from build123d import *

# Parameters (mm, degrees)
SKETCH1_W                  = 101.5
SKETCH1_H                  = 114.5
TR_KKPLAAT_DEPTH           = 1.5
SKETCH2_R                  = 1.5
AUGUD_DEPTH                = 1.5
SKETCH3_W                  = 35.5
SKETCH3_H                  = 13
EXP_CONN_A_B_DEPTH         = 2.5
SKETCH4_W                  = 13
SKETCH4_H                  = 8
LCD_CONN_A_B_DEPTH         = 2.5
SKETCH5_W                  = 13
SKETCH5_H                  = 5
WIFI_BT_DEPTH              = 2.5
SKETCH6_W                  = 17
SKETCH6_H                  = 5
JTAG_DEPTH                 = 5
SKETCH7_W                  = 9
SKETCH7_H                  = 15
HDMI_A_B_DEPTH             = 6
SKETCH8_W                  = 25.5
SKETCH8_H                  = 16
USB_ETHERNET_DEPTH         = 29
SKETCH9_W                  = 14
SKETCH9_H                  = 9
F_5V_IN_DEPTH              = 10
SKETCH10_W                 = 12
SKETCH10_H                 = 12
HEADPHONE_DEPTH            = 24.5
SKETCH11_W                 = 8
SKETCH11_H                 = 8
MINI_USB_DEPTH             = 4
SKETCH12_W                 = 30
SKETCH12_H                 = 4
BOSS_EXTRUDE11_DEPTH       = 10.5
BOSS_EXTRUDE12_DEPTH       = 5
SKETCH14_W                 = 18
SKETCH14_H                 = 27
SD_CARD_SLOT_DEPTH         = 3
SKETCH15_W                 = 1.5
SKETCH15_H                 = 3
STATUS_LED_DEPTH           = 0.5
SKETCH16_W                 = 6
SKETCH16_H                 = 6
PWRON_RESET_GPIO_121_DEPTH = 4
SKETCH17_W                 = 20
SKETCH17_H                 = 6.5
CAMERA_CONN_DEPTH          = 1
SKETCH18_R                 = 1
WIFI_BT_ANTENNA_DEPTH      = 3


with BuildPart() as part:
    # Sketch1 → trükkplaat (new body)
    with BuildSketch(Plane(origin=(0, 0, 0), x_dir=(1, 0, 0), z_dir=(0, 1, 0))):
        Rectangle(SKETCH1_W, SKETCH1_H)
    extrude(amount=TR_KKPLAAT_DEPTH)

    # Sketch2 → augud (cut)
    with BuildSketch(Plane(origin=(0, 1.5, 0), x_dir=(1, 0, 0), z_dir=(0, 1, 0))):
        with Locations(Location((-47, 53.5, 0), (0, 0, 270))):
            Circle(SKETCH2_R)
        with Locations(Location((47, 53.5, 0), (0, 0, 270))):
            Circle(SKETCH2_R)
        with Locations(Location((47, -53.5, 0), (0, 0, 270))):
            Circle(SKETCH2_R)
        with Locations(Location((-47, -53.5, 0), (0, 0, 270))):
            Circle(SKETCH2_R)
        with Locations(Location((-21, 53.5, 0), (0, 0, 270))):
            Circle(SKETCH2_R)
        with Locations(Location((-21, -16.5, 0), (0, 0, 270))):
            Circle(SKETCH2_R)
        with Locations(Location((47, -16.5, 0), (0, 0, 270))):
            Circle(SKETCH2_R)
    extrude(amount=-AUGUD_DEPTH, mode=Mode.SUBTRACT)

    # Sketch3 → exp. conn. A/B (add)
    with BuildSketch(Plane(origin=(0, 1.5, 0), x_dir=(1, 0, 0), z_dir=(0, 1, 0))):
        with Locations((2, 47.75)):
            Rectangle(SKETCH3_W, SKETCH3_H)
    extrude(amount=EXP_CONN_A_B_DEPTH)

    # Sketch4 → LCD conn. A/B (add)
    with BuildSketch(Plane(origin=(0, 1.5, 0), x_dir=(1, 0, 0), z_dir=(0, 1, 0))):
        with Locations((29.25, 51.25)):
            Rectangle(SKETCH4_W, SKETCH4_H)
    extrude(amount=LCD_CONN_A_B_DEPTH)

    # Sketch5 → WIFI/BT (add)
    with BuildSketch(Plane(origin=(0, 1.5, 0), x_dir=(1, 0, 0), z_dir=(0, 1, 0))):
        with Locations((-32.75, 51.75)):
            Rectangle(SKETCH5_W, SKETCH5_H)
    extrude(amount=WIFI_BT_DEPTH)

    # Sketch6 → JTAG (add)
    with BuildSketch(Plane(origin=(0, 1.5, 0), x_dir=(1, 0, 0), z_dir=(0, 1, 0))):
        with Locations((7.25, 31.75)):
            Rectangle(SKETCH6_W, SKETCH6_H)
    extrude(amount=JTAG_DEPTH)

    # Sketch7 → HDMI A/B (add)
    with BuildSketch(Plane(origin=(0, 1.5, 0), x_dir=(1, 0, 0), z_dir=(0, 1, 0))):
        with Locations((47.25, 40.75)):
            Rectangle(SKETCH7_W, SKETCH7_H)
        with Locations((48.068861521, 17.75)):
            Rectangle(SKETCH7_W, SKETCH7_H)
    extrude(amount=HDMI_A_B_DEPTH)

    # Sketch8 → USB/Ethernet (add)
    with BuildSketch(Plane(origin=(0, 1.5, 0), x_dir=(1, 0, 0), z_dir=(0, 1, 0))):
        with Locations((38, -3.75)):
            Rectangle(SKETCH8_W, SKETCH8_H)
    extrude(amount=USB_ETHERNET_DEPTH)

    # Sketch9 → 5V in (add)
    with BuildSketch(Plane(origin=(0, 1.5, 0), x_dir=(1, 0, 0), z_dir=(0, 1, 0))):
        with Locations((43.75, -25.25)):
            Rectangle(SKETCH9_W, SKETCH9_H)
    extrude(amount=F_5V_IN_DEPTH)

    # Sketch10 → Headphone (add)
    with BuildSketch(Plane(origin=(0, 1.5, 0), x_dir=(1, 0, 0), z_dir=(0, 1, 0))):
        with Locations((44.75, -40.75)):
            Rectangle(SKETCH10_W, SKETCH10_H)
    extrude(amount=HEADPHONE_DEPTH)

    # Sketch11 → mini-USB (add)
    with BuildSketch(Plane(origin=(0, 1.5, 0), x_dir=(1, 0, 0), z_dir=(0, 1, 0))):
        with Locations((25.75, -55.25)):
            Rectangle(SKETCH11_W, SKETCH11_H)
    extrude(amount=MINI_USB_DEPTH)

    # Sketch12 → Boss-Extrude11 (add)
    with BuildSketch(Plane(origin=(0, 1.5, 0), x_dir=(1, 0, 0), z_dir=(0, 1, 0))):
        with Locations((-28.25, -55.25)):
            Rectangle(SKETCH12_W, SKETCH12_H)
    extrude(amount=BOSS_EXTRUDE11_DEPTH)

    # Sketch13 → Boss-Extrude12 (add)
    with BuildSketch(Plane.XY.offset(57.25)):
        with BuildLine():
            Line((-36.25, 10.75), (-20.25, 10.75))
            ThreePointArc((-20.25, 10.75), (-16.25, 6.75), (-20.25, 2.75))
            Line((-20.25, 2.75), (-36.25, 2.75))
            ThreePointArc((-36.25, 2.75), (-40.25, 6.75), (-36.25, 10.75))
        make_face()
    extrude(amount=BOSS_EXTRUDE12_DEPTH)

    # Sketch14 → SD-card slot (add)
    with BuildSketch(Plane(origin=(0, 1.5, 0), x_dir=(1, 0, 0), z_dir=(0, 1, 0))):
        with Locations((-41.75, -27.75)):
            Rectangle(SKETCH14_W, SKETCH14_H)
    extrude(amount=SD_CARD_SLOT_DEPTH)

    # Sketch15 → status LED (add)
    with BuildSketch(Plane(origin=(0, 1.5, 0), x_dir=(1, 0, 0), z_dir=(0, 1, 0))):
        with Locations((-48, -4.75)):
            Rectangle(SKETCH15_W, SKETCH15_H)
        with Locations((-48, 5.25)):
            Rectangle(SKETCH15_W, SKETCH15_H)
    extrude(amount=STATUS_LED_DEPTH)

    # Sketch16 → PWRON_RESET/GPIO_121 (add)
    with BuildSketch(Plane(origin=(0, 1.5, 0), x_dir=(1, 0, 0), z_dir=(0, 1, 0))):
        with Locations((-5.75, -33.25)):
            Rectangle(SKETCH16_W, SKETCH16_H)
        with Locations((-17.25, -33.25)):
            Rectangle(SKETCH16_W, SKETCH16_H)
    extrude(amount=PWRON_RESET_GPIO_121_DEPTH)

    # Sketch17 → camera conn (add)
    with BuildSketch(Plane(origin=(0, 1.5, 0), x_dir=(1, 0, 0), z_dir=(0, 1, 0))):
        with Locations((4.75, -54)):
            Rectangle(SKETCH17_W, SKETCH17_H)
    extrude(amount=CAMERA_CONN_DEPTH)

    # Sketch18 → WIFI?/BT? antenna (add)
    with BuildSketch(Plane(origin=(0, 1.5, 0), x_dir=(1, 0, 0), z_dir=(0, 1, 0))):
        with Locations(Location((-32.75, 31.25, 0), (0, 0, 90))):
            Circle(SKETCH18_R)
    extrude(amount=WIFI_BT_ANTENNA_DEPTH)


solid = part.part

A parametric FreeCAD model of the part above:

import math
import FreeCAD as App
import Part
import Sketcher

V = App.Vector

doc = App.newDocument("Part")
body = doc.addObject("PartDesign::Body", "Body")

# Sketch on XZ plane
sketch1 = body.newObject("Sketcher::SketchObject", "Sketch")
sketch1.AttachmentSupport = (doc.getObject("XZ_Plane"), [""])
sketch1.MapMode = "FlatFace"
sketch1.addGeometry([
    Part.LineSegment(V(-51, -57, 0), V(-51, 57, 0)),
    Part.LineSegment(V(-51, 57, 0), V(51, 57, 0)),
    Part.LineSegment(V(51, 57, 0), V(51, -57, 0)),
    Part.LineSegment(V(51, -57, 0), V(-51, -57, 0)),
], False)
sketch1.addConstraint([
    Sketcher.Constraint("Coincident", 0, 2, 1, 1),
    Sketcher.Constraint("Coincident", 1, 2, 2, 1),
    Sketcher.Constraint("Coincident", 2, 2, 3, 1),
    Sketcher.Constraint("Coincident", 3, 2, 0, 1),
    Sketcher.Constraint("Vertical", 0),
    Sketcher.Constraint("Horizontal", 1),
    Sketcher.Constraint("Vertical", 2),
    Sketcher.Constraint("Horizontal", 3),
    Sketcher.Constraint("Symmetric", 0, 2, 2, 2, -1, 1),
    Sketcher.Constraint("DistanceX", 1, 1, 1, 2, 101.5),
    Sketcher.Constraint("DistanceY", 0, 1, 0, 2, 114.5),
])
pad1 = body.newObject("PartDesign::Pad", "Pad")
pad1.Profile = sketch1
pad1.Length = 1.5
pad1.Reversed = True

# Sketch on XZ plane
sketch2 = body.newObject("Sketcher::SketchObject", "Sketch001")
sketch2.AttachmentSupport = (doc.getObject("XZ_Plane"), [""])
sketch2.MapMode = "FlatFace"
sketch2.AttachmentOffset = App.Placement(V(0, 0, -1.5), App.Rotation())
sketch2.addGeometry([
    Part.Circle(V(-47, -53.5, 0), V(0, 0, 1), 1.5),  # 0
    Part.Circle(V(47, -53.5, 0), V(0, 0, 1), 1.5),  # 1
    Part.Circle(V(47, 53.5, 0), V(0, 0, 1), 1.5),  # 2
    Part.Circle(V(-47, 53.5, 0), V(0, 0, 1), 1.5),  # 3
    Part.Circle(V(-21, -53.5, 0), V(0, 0, 1), 1.5),  # 4
    Part.Circle(V(-21, 16.5, 0), V(0, 0, 1), 1.5),  # 5
    Part.Circle(V(47, 16.5, 0), V(0, 0, 1), 1.5),  # 6
], False)
sketch2.addConstraint([
    Sketcher.Constraint("Equal", 0, 1),
    Sketcher.Constraint("Equal", 1, 2),
    Sketcher.Constraint("Equal", 2, 3),
    Sketcher.Constraint("Equal", 3, 4),
    Sketcher.Constraint("Equal", 4, 5),
    Sketcher.Constraint("Equal", 5, 6),
    Sketcher.Constraint("Symmetric", 0, 3, 2, 3, -1, 1),
    Sketcher.Constraint("Symmetric", 1, 3, 3, 3, -1, 1),
    Sketcher.Constraint("Symmetric", 0, 3, 1, 3, -2),
    Sketcher.Constraint("Horizontal", 1, 3, 4, 3),
    Sketcher.Constraint("Horizontal", 5, 3, 6, 3),
    Sketcher.Constraint("Vertical", 4, 3, 5, 3),
    Sketcher.Constraint("Vertical", 2, 3, 6, 3),
    Sketcher.Constraint("Diameter", 0, 3.0),
    Sketcher.Constraint("DistanceX", 0, 3, -1, 1, 47.0),
    Sketcher.Constraint("DistanceX", 4, 3, -1, 1, 21.0),
    Sketcher.Constraint("DistanceY", 1, 3, 2, 3, 107.0),
    Sketcher.Constraint("DistanceY", 5, 3, 3, 3, 37.0),
])
pocket1 = body.newObject("PartDesign::Pocket", "Pocket")
pocket1.Profile = sketch2
pocket1.Length = 1.5
pocket1.Reversed = True

# Sketch on XZ plane
sketch3 = body.newObject("Sketcher::SketchObject", "Sketch002")
sketch3.AttachmentSupport = (doc.getObject("XZ_Plane"), [""])
sketch3.MapMode = "FlatFace"
sketch3.AttachmentOffset = App.Placement(V(0, 0, -1.5), App.Rotation())
sketch3.addGeometry([
    Part.LineSegment(V(-16, -54, 0), V(-16, -41, 0)),
    Part.LineSegment(V(-16, -41, 0), V(20, -41, 0)),
    Part.LineSegment(V(20, -41, 0), V(20, -54, 0)),
    Part.LineSegment(V(20, -54, 0), V(-16, -54, 0)),
], False)
sketch3.addConstraint([
    Sketcher.Constraint("Coincident", 0, 2, 1, 1),
    Sketcher.Constraint("Coincident", 1, 2, 2, 1),
    Sketcher.Constraint("Coincident", 2, 2, 3, 1),
    Sketcher.Constraint("Coincident", 3, 2, 0, 1),
    Sketcher.Constraint("Vertical", 0),
    Sketcher.Constraint("Horizontal", 1),
    Sketcher.Constraint("Vertical", 2),
    Sketcher.Constraint("Horizontal", 3),
    Sketcher.Constraint("DistanceY", 0, 1, 0, 2, 13.0),
    Sketcher.Constraint("DistanceX", 1, 1, 1, 2, 35.5),
    Sketcher.Constraint("DistanceX", 0, 2, -1, 1, 15.75),
    Sketcher.Constraint("DistanceY", 0, 2, -1, 1, 41.25),
])
pad2 = body.newObject("PartDesign::Pad", "Pad001")
pad2.Profile = sketch3
pad2.Length = 2.5
pad2.Reversed = True

# Sketch on XZ plane
sketch4 = body.newObject("Sketcher::SketchObject", "Sketch003")
sketch4.AttachmentSupport = (doc.getObject("XZ_Plane"), [""])
sketch4.MapMode = "FlatFace"
sketch4.AttachmentOffset = App.Placement(V(0, 0, -1.5), App.Rotation())
sketch4.addGeometry([
    Part.LineSegment(V(23, -55, 0), V(23, -47, 0)),
    Part.LineSegment(V(23, -47, 0), V(36, -47, 0)),
    Part.LineSegment(V(36, -47, 0), V(36, -55, 0)),
    Part.LineSegment(V(36, -55, 0), V(23, -55, 0)),
], False)
sketch4.addConstraint([
    Sketcher.Constraint("Coincident", 0, 2, 1, 1),
    Sketcher.Constraint("Coincident", 1, 2, 2, 1),
    Sketcher.Constraint("Coincident", 2, 2, 3, 1),
    Sketcher.Constraint("Coincident", 3, 2, 0, 1),
    Sketcher.Constraint("Vertical", 0),
    Sketcher.Constraint("Horizontal", 1),
    Sketcher.Constraint("Vertical", 2),
    Sketcher.Constraint("Horizontal", 3),
    Sketcher.Constraint("DistanceX", 1, 1, 1, 2, 13.0),
    Sketcher.Constraint("DistanceY", 0, 1, 0, 2, 8.0),
    Sketcher.Constraint("DistanceX", -1, 1, 0, 2, 22.75),
    Sketcher.Constraint("DistanceY", 0, 2, -1, 1, 47.25),
])
pad3 = body.newObject("PartDesign::Pad", "Pad002")
pad3.Profile = sketch4
pad3.Length = 2.5
pad3.Reversed = True

# Sketch on XZ plane
sketch5 = body.newObject("Sketcher::SketchObject", "Sketch004")
sketch5.AttachmentSupport = (doc.getObject("XZ_Plane"), [""])
sketch5.MapMode = "FlatFace"
sketch5.AttachmentOffset = App.Placement(V(0, 0, -1.5), App.Rotation())
sketch5.addGeometry([
    Part.LineSegment(V(-39, -54, 0), V(-39, -49, 0)),
    Part.LineSegment(V(-39, -49, 0), V(-26, -49, 0)),
    Part.LineSegment(V(-26, -49, 0), V(-26, -54, 0)),
    Part.LineSegment(V(-26, -54, 0), V(-39, -54, 0)),
], False)
sketch5.addConstraint([
    Sketcher.Constraint("Coincident", 0, 2, 1, 1),
    Sketcher.Constraint("Coincident", 1, 2, 2, 1),
    Sketcher.Constraint("Coincident", 2, 2, 3, 1),
    Sketcher.Constraint("Coincident", 3, 2, 0, 1),
    Sketcher.Constraint("Vertical", 0),
    Sketcher.Constraint("Horizontal", 1),
    Sketcher.Constraint("Vertical", 2),
    Sketcher.Constraint("Horizontal", 3),
    Sketcher.Constraint("DistanceX", 1, 1, 1, 2, 13.0),
    Sketcher.Constraint("DistanceY", 0, 1, 0, 2, 5.0),
    Sketcher.Constraint("DistanceX", 0, 2, -1, 1, 39.25),
    Sketcher.Constraint("DistanceY", 0, 2, -1, 1, 49.25),
])
pad4 = body.newObject("PartDesign::Pad", "Pad003")
pad4.Profile = sketch5
pad4.Length = 2.5
pad4.Reversed = True

# Sketch on XZ plane
sketch6 = body.newObject("Sketcher::SketchObject", "Sketch005")
sketch6.AttachmentSupport = (doc.getObject("XZ_Plane"), [""])
sketch6.MapMode = "FlatFace"
sketch6.AttachmentOffset = App.Placement(V(0, 0, -1.5), App.Rotation())
sketch6.addGeometry([
    Part.LineSegment(V(-1, -34, 0), V(-1, -29, 0)),
    Part.LineSegment(V(-1, -29, 0), V(16, -29, 0)),
    Part.LineSegment(V(16, -29, 0), V(16, -34, 0)),
    Part.LineSegment(V(16, -34, 0), V(-1, -34, 0)),
], False)
sketch6.addConstraint([
    Sketcher.Constraint("Coincident", 0, 2, 1, 1),
    Sketcher.Constraint("Coincident", 1, 2, 2, 1),
    Sketcher.Constraint("Coincident", 2, 2, 3, 1),
    Sketcher.Constraint("Coincident", 3, 2, 0, 1),
    Sketcher.Constraint("Vertical", 0),
    Sketcher.Constraint("Horizontal", 1),
    Sketcher.Constraint("Vertical", 2),
    Sketcher.Constraint("Horizontal", 3),
    Sketcher.Constraint("DistanceX", 1, 1, 1, 2, 17.0),
    Sketcher.Constraint("DistanceY", 0, 1, 0, 2, 5.0),
    Sketcher.Constraint("DistanceX", 0, 2, -1, 1, 1.25),
    Sketcher.Constraint("DistanceY", 0, 2, -1, 1, 29.25),
])
pad5 = body.newObject("PartDesign::Pad", "Pad004")
pad5.Profile = sketch6
pad5.Length = 5
pad5.Reversed = True

# Sketch on XZ plane
sketch7 = body.newObject("Sketcher::SketchObject", "Sketch006")
sketch7.AttachmentSupport = (doc.getObject("XZ_Plane"), [""])
sketch7.MapMode = "FlatFace"
sketch7.AttachmentOffset = App.Placement(V(0, 0, -1.5), App.Rotation())
sketch7.addGeometry([
    Part.LineSegment(V(43, -48, 0), V(43, -33, 0)),  # 0
    Part.LineSegment(V(43, -33, 0), V(52, -33, 0)),  # 1
    Part.LineSegment(V(52, -33, 0), V(52, -48, 0)),  # 2
    Part.LineSegment(V(52, -48, 0), V(43, -48, 0)),  # 3
    Part.LineSegment(V(44, -25, 0), V(44, -10, 0)),  # 4
    Part.LineSegment(V(44, -10, 0), V(53, -10, 0)),  # 5
    Part.LineSegment(V(53, -10, 0), V(53, -25, 0)),  # 6
    Part.LineSegment(V(53, -25, 0), V(44, -25, 0)),  # 7
], False)
sketch7.addConstraint([
    Sketcher.Constraint("Coincident", 0, 2, 1, 1),
    Sketcher.Constraint("Coincident", 1, 2, 2, 1),
    Sketcher.Constraint("Coincident", 2, 2, 3, 1),
    Sketcher.Constraint("Coincident", 3, 2, 0, 1),
    Sketcher.Constraint("Coincident", 4, 2, 5, 1),
    Sketcher.Constraint("Coincident", 5, 2, 6, 1),
    Sketcher.Constraint("Coincident", 6, 2, 7, 1),
    Sketcher.Constraint("Coincident", 7, 2, 4, 1),
    Sketcher.Constraint("Vertical", 0),
    Sketcher.Constraint("Horizontal", 1),
    Sketcher.Constraint("Vertical", 2),
    Sketcher.Constraint("Horizontal", 3),
    Sketcher.Constraint("Vertical", 4),
    Sketcher.Constraint("Horizontal", 5),
    Sketcher.Constraint("Vertical", 6),
    Sketcher.Constraint("Horizontal", 7),
    Sketcher.Constraint("Equal", 3, 5),
    Sketcher.Constraint("Equal", 2, 4),
    Sketcher.Constraint("DistanceX", 1, 1, 1, 2, 9.0),
    Sketcher.Constraint("DistanceY", 0, 1, 0, 2, 15.0),
    Sketcher.Constraint("DistanceY", 0, 2, 4, 2, 23.0),
    Sketcher.Constraint("DistanceX", -1, 1, 0, 2, 42.75),
    Sketcher.Constraint("DistanceY", 0, 2, -1, 1, 33.25),
    Sketcher.Constraint("DistanceX", -1, 1, 4, 2, 43.568862),
])
pad6 = body.newObject("PartDesign::Pad", "Pad005")
pad6.Profile = sketch7
pad6.Length = 6
pad6.Reversed = True

# Sketch on XZ plane
sketch8 = body.newObject("Sketcher::SketchObject", "Sketch007")
sketch8.AttachmentSupport = (doc.getObject("XZ_Plane"), [""])
sketch8.MapMode = "FlatFace"
sketch8.AttachmentOffset = App.Placement(V(0, 0, -1.5), App.Rotation())
sketch8.addGeometry([
    Part.LineSegment(V(25, -4, 0), V(25, 12, 0)),
    Part.LineSegment(V(25, 12, 0), V(51, 12, 0)),
    Part.LineSegment(V(51, 12, 0), V(51, -4, 0)),
    Part.LineSegment(V(51, -4, 0), V(25, -4, 0)),
], False)
sketch8.addConstraint([
    Sketcher.Constraint("Coincident", 0, 2, 1, 1),
    Sketcher.Constraint("Coincident", 1, 2, 2, 1),
    Sketcher.Constraint("Coincident", 2, 2, 3, 1),
    Sketcher.Constraint("Coincident", 3, 2, 0, 1),
    Sketcher.Constraint("Vertical", 0),
    Sketcher.Constraint("Horizontal", 1),
    Sketcher.Constraint("Vertical", 2),
    Sketcher.Constraint("Horizontal", 3),
    Sketcher.Constraint("DistanceY", 0, 1, 0, 2, 16.0),
    Sketcher.Constraint("DistanceX", 1, 1, 1, 2, 25.5),
    Sketcher.Constraint("DistanceX", -1, 1, 0, 2, 25.25),
    Sketcher.Constraint("DistanceY", -1, 1, 0, 2, 11.75),
])
pad7 = body.newObject("PartDesign::Pad", "Pad006")
pad7.Profile = sketch8
pad7.Length = 29
pad7.Reversed = True

# Sketch on XZ plane
sketch9 = body.newObject("Sketcher::SketchObject", "Sketch008")
sketch9.AttachmentSupport = (doc.getObject("XZ_Plane"), [""])
sketch9.MapMode = "FlatFace"
sketch9.AttachmentOffset = App.Placement(V(0, 0, -1.5), App.Rotation())
sketch9.addGeometry([
    Part.LineSegment(V(37, 21, 0), V(37, 30, 0)),
    Part.LineSegment(V(37, 30, 0), V(51, 30, 0)),
    Part.LineSegment(V(51, 30, 0), V(51, 21, 0)),
    Part.LineSegment(V(51, 21, 0), V(37, 21, 0)),
], False)
sketch9.addConstraint([
    Sketcher.Constraint("Coincident", 0, 2, 1, 1),
    Sketcher.Constraint("Coincident", 1, 2, 2, 1),
    Sketcher.Constraint("Coincident", 2, 2, 3, 1),
    Sketcher.Constraint("Coincident", 3, 2, 0, 1),
    Sketcher.Constraint("Vertical", 0),
    Sketcher.Constraint("Horizontal", 1),
    Sketcher.Constraint("Vertical", 2),
    Sketcher.Constraint("Horizontal", 3),
    Sketcher.Constraint("DistanceX", 1, 1, 1, 2, 14.0),
    Sketcher.Constraint("DistanceY", 0, 1, 0, 2, 9.0),
    Sketcher.Constraint("DistanceX", -1, 1, 0, 2, 36.75),
    Sketcher.Constraint("DistanceY", -1, 1, 0, 2, 29.75),
])
pad8 = body.newObject("PartDesign::Pad", "Pad007")
pad8.Profile = sketch9
pad8.Length = 10
pad8.Reversed = True

# Sketch on XZ plane
sketch10 = body.newObject("Sketcher::SketchObject", "Sketch009")
sketch10.AttachmentSupport = (doc.getObject("XZ_Plane"), [""])
sketch10.MapMode = "FlatFace"
sketch10.AttachmentOffset = App.Placement(V(0, 0, -1.5), App.Rotation())
sketch10.addGeometry([
    Part.LineSegment(V(39, 35, 0), V(39, 47, 0)),
    Part.LineSegment(V(39, 47, 0), V(51, 47, 0)),
    Part.LineSegment(V(51, 47, 0), V(51, 35, 0)),
    Part.LineSegment(V(51, 35, 0), V(39, 35, 0)),
], False)
sketch10.addConstraint([
    Sketcher.Constraint("Coincident", 0, 2, 1, 1),
    Sketcher.Constraint("Coincident", 1, 2, 2, 1),
    Sketcher.Constraint("Coincident", 2, 2, 3, 1),
    Sketcher.Constraint("Coincident", 3, 2, 0, 1),
    Sketcher.Constraint("Vertical", 0),
    Sketcher.Constraint("Horizontal", 1),
    Sketcher.Constraint("Vertical", 2),
    Sketcher.Constraint("Horizontal", 3),
    Sketcher.Constraint("Equal", 3, 0),
    Sketcher.Constraint("DistanceX", 1, 1, 1, 2, 12.0),
    Sketcher.Constraint("DistanceX", -1, 1, 0, 2, 38.75),
    Sketcher.Constraint("DistanceY", -1, 1, 0, 2, 46.75),
])
pad9 = body.newObject("PartDesign::Pad", "Pad008")
pad9.Profile = sketch10
pad9.Length = 24.5
pad9.Reversed = True

# Sketch on XZ plane
sketch11 = body.newObject("Sketcher::SketchObject", "Sketch010")
sketch11.AttachmentSupport = (doc.getObject("XZ_Plane"), [""])
sketch11.MapMode = "FlatFace"
sketch11.AttachmentOffset = App.Placement(V(0, 0, -1.5), App.Rotation())
sketch11.addGeometry([
    Part.LineSegment(V(22, 51, 0), V(22, 59, 0)),
    Part.LineSegment(V(22, 59, 0), V(30, 59, 0)),
    Part.LineSegment(V(30, 59, 0), V(30, 51, 0)),
    Part.LineSegment(V(30, 51, 0), V(22, 51, 0)),
], False)
sketch11.addConstraint([
    Sketcher.Constraint("Coincident", 0, 2, 1, 1),
    Sketcher.Constraint("Coincident", 1, 2, 2, 1),
    Sketcher.Constraint("Coincident", 2, 2, 3, 1),
    Sketcher.Constraint("Coincident", 3, 2, 0, 1),
    Sketcher.Constraint("Vertical", 0),
    Sketcher.Constraint("Horizontal", 1),
    Sketcher.Constraint("Vertical", 2),
    Sketcher.Constraint("Horizontal", 3),
    Sketcher.Constraint("Equal", 3, 0),
    Sketcher.Constraint("DistanceX", 1, 1, 1, 2, 8.0),
    Sketcher.Constraint("DistanceX", -1, 1, 0, 2, 21.75),
    Sketcher.Constraint("DistanceY", -1, 1, 0, 2, 59.25),
])
pad10 = body.newObject("PartDesign::Pad", "Pad009")
pad10.Profile = sketch11
pad10.Length = 4
pad10.Reversed = True

# Sketch on XZ plane
sketch12 = body.newObject("Sketcher::SketchObject", "Sketch011")
sketch12.AttachmentSupport = (doc.getObject("XZ_Plane"), [""])
sketch12.MapMode = "FlatFace"
sketch12.AttachmentOffset = App.Placement(V(0, 0, -1.5), App.Rotation())
sketch12.addGeometry([
    Part.LineSegment(V(-43.2, 53.2, 0), V(-43.2, 57.2, 0)),
    Part.LineSegment(V(-43.2, 57.2, 0), V(-13.2, 57.2, 0)),
    Part.LineSegment(V(-13.2, 57.2, 0), V(-13.2, 53.2, 0)),
    Part.LineSegment(V(-13.2, 53.2, 0), V(-43.2, 53.2, 0)),
], False)
sketch12.addConstraint([
    Sketcher.Constraint("Coincident", 0, 2, 1, 1),
    Sketcher.Constraint("Coincident", 1, 2, 2, 1),
    Sketcher.Constraint("Coincident", 2, 2, 3, 1),
    Sketcher.Constraint("Coincident", 3, 2, 0, 1),
    Sketcher.Constraint("Vertical", 0),
    Sketcher.Constraint("Horizontal", 1),
    Sketcher.Constraint("Vertical", 2),
    Sketcher.Constraint("Horizontal", 3),
    Sketcher.Constraint("DistanceX", 1, 1, 1, 2, 30.0),
    Sketcher.Constraint("DistanceY", 0, 1, 0, 2, 4.0),
    Sketcher.Constraint("DistanceX", 0, 2, -1, 1, 43.25),
    Sketcher.Constraint("DistanceY", -1, 1, 0, 2, 57.25),
])
pad11 = body.newObject("PartDesign::Pad", "Pad010")
pad11.Profile = sketch12
pad11.Length = 10.5
pad11.Reversed = True

# Sketch on XY plane
sketch13 = body.newObject("Sketcher::SketchObject", "Sketch012")
sketch13.AttachmentSupport = (doc.getObject("XY_Plane"), [""])
sketch13.MapMode = "FlatFace"
sketch13.AttachmentOffset = App.Placement(V(0, 0, 57.25), App.Rotation())
sketch13.addGeometry([
    Part.LineSegment(V(-20.2, 10.8, 0), V(-36.2, 10.8, 0)),
    Part.ArcOfCircle(Part.Circle(V(-36.2, 6.8, 0), V(0, 0, 1), 4), math.radians(90), math.radians(270)),
    Part.LineSegment(V(-36.2, 2.8, 0), V(-20.2, 2.8, 0)),
    Part.ArcOfCircle(Part.Circle(V(-20.2, 6.8, 0), V(0, 0, 1), 4), math.radians(-90), math.radians(90)),
], False)
sketch13.addConstraint([
    Sketcher.Constraint("Tangent", 0, 2, 1, 1),
    Sketcher.Constraint("Tangent", 1, 2, 2, 1),
    Sketcher.Constraint("Tangent", 2, 2, 3, 1),
    Sketcher.Constraint("Tangent", 3, 2, 0, 1),
    Sketcher.Constraint("Horizontal", 0),
    Sketcher.Constraint("Horizontal", 2),
    Sketcher.Constraint("Radius", 1, 4.0),
    Sketcher.Constraint("DistanceX", 0, 2, 0, 1, 16.0),
    Sketcher.Constraint("DistanceX", 1, 3, -1, 1, 36.25),
    Sketcher.Constraint("DistanceY", -1, 1, 1, 3, 6.75),
])
pad12 = body.newObject("PartDesign::Pad", "Pad011")
pad12.Profile = sketch13
pad12.Length = 5

# Sketch on XZ plane
sketch14 = body.newObject("Sketcher::SketchObject", "Sketch013")
sketch14.AttachmentSupport = (doc.getObject("XZ_Plane"), [""])
sketch14.MapMode = "FlatFace"
sketch14.AttachmentOffset = App.Placement(V(0, 0, -1.5), App.Rotation())
sketch14.addGeometry([
    Part.LineSegment(V(-51, 14, 0), V(-51, 41, 0)),
    Part.LineSegment(V(-51, 41, 0), V(-33, 41, 0)),
    Part.LineSegment(V(-33, 41, 0), V(-33, 14, 0)),
    Part.LineSegment(V(-33, 14, 0), V(-51, 14, 0)),
], False)
sketch14.addConstraint([
    Sketcher.Constraint("Coincident", 0, 2, 1, 1),
    Sketcher.Constraint("Coincident", 1, 2, 2, 1),
    Sketcher.Constraint("Coincident", 2, 2, 3, 1),
    Sketcher.Constraint("Coincident", 3, 2, 0, 1),
    Sketcher.Constraint("Vertical", 0),
    Sketcher.Constraint("Horizontal", 1),
    Sketcher.Constraint("Vertical", 2),
    Sketcher.Constraint("Horizontal", 3),
    Sketcher.Constraint("DistanceX", 1, 1, 1, 2, 18.0),
    Sketcher.Constraint("DistanceY", 0, 1, 0, 2, 27.0),
    Sketcher.Constraint("DistanceX", 0, 2, -1, 1, 50.75),
    Sketcher.Constraint("DistanceY", -1, 1, 0, 2, 41.25),
])
pad13 = body.newObject("PartDesign::Pad", "Pad012")
pad13.Profile = sketch14
pad13.Length = 3
pad13.Reversed = True

# Sketch on XZ plane
sketch15 = body.newObject("Sketcher::SketchObject", "Sketch014")
sketch15.AttachmentSupport = (doc.getObject("XZ_Plane"), [""])
sketch15.MapMode = "FlatFace"
sketch15.AttachmentOffset = App.Placement(V(0, 0, -1.5), App.Rotation())
sketch15.addGeometry([
    Part.LineSegment(V(-48.8, 3.2, 0), V(-48.8, 6.2, 0)),  # 0
    Part.LineSegment(V(-48.8, 6.2, 0), V(-47.2, 6.2, 0)),  # 1
    Part.LineSegment(V(-47.2, 6.2, 0), V(-47.2, 3.2, 0)),  # 2
    Part.LineSegment(V(-47.2, 3.2, 0), V(-48.8, 3.2, 0)),  # 3
    Part.LineSegment(V(-48.8, -6.8, 0), V(-48.8, -3.8, 0)),  # 4
    Part.LineSegment(V(-48.8, -3.8, 0), V(-47.2, -3.8, 0)),  # 5
    Part.LineSegment(V(-47.2, -3.8, 0), V(-47.2, -6.8, 0)),  # 6
    Part.LineSegment(V(-47.2, -6.8, 0), V(-48.8, -6.8, 0)),  # 7
], False)
sketch15.addConstraint([
    Sketcher.Constraint("Coincident", 0, 2, 1, 1),
    Sketcher.Constraint("Coincident", 1, 2, 2, 1),
    Sketcher.Constraint("Coincident", 2, 2, 3, 1),
    Sketcher.Constraint("Coincident", 3, 2, 0, 1),
    Sketcher.Constraint("Coincident", 4, 2, 5, 1),
    Sketcher.Constraint("Coincident", 5, 2, 6, 1),
    Sketcher.Constraint("Coincident", 6, 2, 7, 1),
    Sketcher.Constraint("Coincident", 7, 2, 4, 1),
    Sketcher.Constraint("Vertical", 0),
    Sketcher.Constraint("Horizontal", 1),
    Sketcher.Constraint("Vertical", 2),
    Sketcher.Constraint("Horizontal", 3),
    Sketcher.Constraint("Vertical", 4),
    Sketcher.Constraint("Horizontal", 5),
    Sketcher.Constraint("Vertical", 6),
    Sketcher.Constraint("Horizontal", 7),
    Sketcher.Constraint("Vertical", 3, 2, 4, 2),
    Sketcher.Constraint("Vertical", 2, 2, 5, 2),
    Sketcher.Constraint("Equal", 2, 4),
    Sketcher.Constraint("DistanceY", 0, 1, 0, 2, 3.0),
    Sketcher.Constraint("DistanceX", 1, 1, 1, 2, 1.5),
    Sketcher.Constraint("DistanceY", 4, 2, 3, 2, 7.0),
    Sketcher.Constraint("DistanceX", 0, 2, -1, 1, 48.75),
    Sketcher.Constraint("DistanceY", -1, 1, 0, 2, 6.25),
])
pad14 = body.newObject("PartDesign::Pad", "Pad013")
pad14.Profile = sketch15
pad14.Length = 0.5
pad14.Reversed = True

# Sketch on XZ plane
sketch16 = body.newObject("Sketcher::SketchObject", "Sketch015")
sketch16.AttachmentSupport = (doc.getObject("XZ_Plane"), [""])
sketch16.MapMode = "FlatFace"
sketch16.AttachmentOffset = App.Placement(V(0, 0, -1.5), App.Rotation())
sketch16.addGeometry([
    Part.LineSegment(V(-9, 30, 0), V(-9, 36, 0)),  # 0
    Part.LineSegment(V(-9, 36, 0), V(-3, 36, 0)),  # 1
    Part.LineSegment(V(-3, 36, 0), V(-3, 30, 0)),  # 2
    Part.LineSegment(V(-3, 30, 0), V(-9, 30, 0)),  # 3
    Part.LineSegment(V(-20, 30, 0), V(-20, 36, 0)),  # 4
    Part.LineSegment(V(-20, 36, 0), V(-14, 36, 0)),  # 5
    Part.LineSegment(V(-14, 36, 0), V(-14, 30, 0)),  # 6
    Part.LineSegment(V(-14, 30, 0), V(-20, 30, 0)),  # 7
], False)
sketch16.addConstraint([
    Sketcher.Constraint("Coincident", 0, 2, 1, 1),
    Sketcher.Constraint("Coincident", 1, 2, 2, 1),
    Sketcher.Constraint("Coincident", 2, 2, 3, 1),
    Sketcher.Constraint("Coincident", 3, 2, 0, 1),
    Sketcher.Constraint("Coincident", 4, 2, 5, 1),
    Sketcher.Constraint("Coincident", 5, 2, 6, 1),
    Sketcher.Constraint("Coincident", 6, 2, 7, 1),
    Sketcher.Constraint("Coincident", 7, 2, 4, 1),
    Sketcher.Constraint("Vertical", 0),
    Sketcher.Constraint("Horizontal", 1),
    Sketcher.Constraint("Vertical", 2),
    Sketcher.Constraint("Horizontal", 3),
    Sketcher.Constraint("Vertical", 4),
    Sketcher.Constraint("Horizontal", 5),
    Sketcher.Constraint("Vertical", 6),
    Sketcher.Constraint("Horizontal", 7),
    Sketcher.Constraint("Horizontal", 1, 2, 4, 2),
    Sketcher.Constraint("Horizontal", 3, 2, 6, 2),
    Sketcher.Constraint("Equal", 3, 5),
    Sketcher.Constraint("Equal", 7, 0),
    Sketcher.Constraint("DistanceX", 1, 1, 1, 2, 6.0),
    Sketcher.Constraint("DistanceX", 4, 2, 0, 2, 11.5),
    Sketcher.Constraint("DistanceX", 0, 2, -1, 1, 8.75),
    Sketcher.Constraint("DistanceY", -1, 1, 0, 2, 36.25),
])
pad15 = body.newObject("PartDesign::Pad", "Pad014")
pad15.Profile = sketch16
pad15.Length = 4
pad15.Reversed = True

# Sketch on XZ plane
sketch17 = body.newObject("Sketcher::SketchObject", "Sketch016")
sketch17.AttachmentSupport = (doc.getObject("XZ_Plane"), [""])
sketch17.MapMode = "FlatFace"
sketch17.AttachmentOffset = App.Placement(V(0, 0, -1.5), App.Rotation())
sketch17.addGeometry([
    Part.LineSegment(V(-5, 51, 0), V(-5, 57, 0)),
    Part.LineSegment(V(-5, 57, 0), V(15, 57, 0)),
    Part.LineSegment(V(15, 57, 0), V(15, 51, 0)),
    Part.LineSegment(V(15, 51, 0), V(-5, 51, 0)),
], False)
sketch17.addConstraint([
    Sketcher.Constraint("Coincident", 0, 2, 1, 1),
    Sketcher.Constraint("Coincident", 1, 2, 2, 1),
    Sketcher.Constraint("Coincident", 2, 2, 3, 1),
    Sketcher.Constraint("Coincident", 3, 2, 0, 1),
    Sketcher.Constraint("Vertical", 0),
    Sketcher.Constraint("Horizontal", 1),
    Sketcher.Constraint("Vertical", 2),
    Sketcher.Constraint("Horizontal", 3),
    Sketcher.Constraint("DistanceX", 1, 1, 1, 2, 20.0),
    Sketcher.Constraint("DistanceY", 0, 1, 0, 2, 6.5),
    Sketcher.Constraint("DistanceX", 0, 2, -1, 1, 5.25),
    Sketcher.Constraint("DistanceY", -1, 1, 0, 2, 57.25),
])
pad16 = body.newObject("PartDesign::Pad", "Pad015")
pad16.Profile = sketch17
pad16.Length = 1
pad16.Reversed = True

# Sketch on XZ plane
sketch18 = body.newObject("Sketcher::SketchObject", "Sketch017")
sketch18.AttachmentSupport = (doc.getObject("XZ_Plane"), [""])
sketch18.MapMode = "FlatFace"
sketch18.AttachmentOffset = App.Placement(V(0, 0, -1.5), App.Rotation())
sketch18.addGeometry(Part.Circle(V(-32.8, -31.2, 0), V(0, 0, 1), 1), False)
sketch18.addConstraint([
    Sketcher.Constraint("Diameter", 0, 2.0),
    Sketcher.Constraint("DistanceX", 0, 3, -1, 1, 32.75),
    Sketcher.Constraint("DistanceY", 0, 3, -1, 1, 31.25),
])
pad17 = body.newObject("PartDesign::Pad", "Pad016")
pad17.Profile = sketch18
pad17.Length = 3
pad17.Reversed = True

doc.recompute()
